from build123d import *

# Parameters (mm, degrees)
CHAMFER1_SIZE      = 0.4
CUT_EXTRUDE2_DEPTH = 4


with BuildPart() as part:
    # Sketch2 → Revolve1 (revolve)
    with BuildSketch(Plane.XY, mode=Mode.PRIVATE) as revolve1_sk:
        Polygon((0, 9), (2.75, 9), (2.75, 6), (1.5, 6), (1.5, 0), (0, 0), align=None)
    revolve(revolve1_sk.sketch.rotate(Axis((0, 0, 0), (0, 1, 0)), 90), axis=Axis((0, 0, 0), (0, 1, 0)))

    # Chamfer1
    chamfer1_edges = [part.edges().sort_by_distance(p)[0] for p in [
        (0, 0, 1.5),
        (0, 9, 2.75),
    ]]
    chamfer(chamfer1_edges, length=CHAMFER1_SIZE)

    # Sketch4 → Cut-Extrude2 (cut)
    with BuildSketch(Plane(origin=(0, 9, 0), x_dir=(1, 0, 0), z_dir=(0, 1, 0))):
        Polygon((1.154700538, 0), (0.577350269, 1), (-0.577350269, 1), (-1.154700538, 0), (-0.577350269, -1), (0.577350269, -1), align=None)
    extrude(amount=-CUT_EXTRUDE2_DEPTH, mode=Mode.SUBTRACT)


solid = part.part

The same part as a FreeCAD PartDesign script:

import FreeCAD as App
import Part
import Sketcher
from FreeCAD import Vector
Q = App.Units.Quantity


def edges_at(feature, points):
    """Names of the edges that pass closest to the given points."""
    edges = feature.Shape.Edges
    near = lambda p: min(range(len(edges)), key=lambda i: edges[i].distToShape(Part.Vertex(*p))[0])
    return sorted({f"Edge{near(p) + 1}" for p in points})


def add_polygon(sketch, points):
    """Adds a closed chain of lines whose ends are joined by coincident constraints."""
    first, n = sketch.GeometryCount, len(points)
    for a, b in zip(points, points[1:] + points[:1]):
        sketch.addGeometry(Part.LineSegment(App.Vector(*a, 0), App.Vector(*b, 0)), False)
    for i in range(n):
        sketch.addConstraint(Sketcher.Constraint("Coincident", first + i, 2, first + (i + 1) % n, 1))

doc = App.newDocument("Part")
body = doc.addObject("PartDesign::Body", "Body")

sketch1 = doc.addObject("Sketcher::SketchObject", "Sketch")
body.addObject(sketch1)
sketch1.AttachmentSupport = (doc.XY_Plane, [""])
sketch1.MapMode = "FlatFace"
add_polygon(sketch1, [(2.8, 9), (0, 9), (0, 0), (1.5, 0), (1.5, 6), (2.8, 6)])
sketch1.addConstraint([
    Sketcher.Constraint("Horizontal", 0),
    Sketcher.Constraint("Vertical", 1),
    Sketcher.Constraint("Horizontal", 2),
    Sketcher.Constraint("Vertical", 3),
    Sketcher.Constraint("Horizontal", 4),
    Sketcher.Constraint("Vertical", 5),
    Sketcher.Constraint("Coincident", 1, 2, -1, 1),
    Sketcher.Constraint("DistanceY", 1, 2, 1, 1, 9.0),
    Sketcher.Constraint("DistanceY", 3, 1, 3, 2, 6.0),
    Sketcher.Constraint("DistanceX", 2, 1, 2, 2, 1.5),
    Sketcher.Constraint("DistanceX", 0, 2, 0, 1, 2.75),
])
revolution = doc.addObject("PartDesign::Revolution", "Revolution")
body.addObject(revolution)
revolution.Profile = sketch1
revolution.ReferenceAxis = (sketch1, ["V_Axis"])
revolution.Angle = 360
doc.recompute()

chamfer = doc.addObject("PartDesign::Chamfer", "Chamfer")
body.addObject(chamfer)
chamfer.Base = (revolution, edges_at(revolution, [(0, 0, 1.5), (0, 9, 2.75)]))
chamfer.Size = 0.4

sketch2 = doc.addObject("Sketcher::SketchObject", "Sketch001")
body.addObject(sketch2)
sketch2.AttachmentSupport = (doc.XZ_Plane, [""])
sketch2.MapMode = "FlatFace"
sketch2.AttachmentOffset = App.Placement(Vector(0, 0, -9), App.Rotation())
add_polygon(sketch2, [(1.2, 0), (0.6, -1), (-0.6, -1), (-1.2, 0), (-0.6, 1), (0.6, 1)])
sketch2.addConstraint([
    Sketcher.Constraint("Horizontal", 1),
    Sketcher.Constraint("Horizontal", 4),
    Sketcher.Constraint("Symmetric", 0, 2, 3, 2, -1, 1),
    Sketcher.Constraint("Symmetric", 2, 2, 5, 2, -1, 1),
    Sketcher.Constraint("PointOnObject", 2, 2, -1),
    Sketcher.Constraint("Parallel", 2, 5),
    Sketcher.Constraint("Vertical", 1, 2, 3, 2),
    Sketcher.Constraint("Angle", 0, Q("-120 deg")),
    Sketcher.Constraint("DistanceY", 0, 2, -1, 1, 1.0),
    Sketcher.Constraint("DistanceX", 1, 2, 1, 1, 1.154701),
])
pocket1 = doc.addObject("PartDesign::Pocket", "Pocket")
body.addObject(pocket1)
pocket1.Profile = sketch2
pocket1.Length = 4
pocket1.Reversed = True

doc.recompute()
